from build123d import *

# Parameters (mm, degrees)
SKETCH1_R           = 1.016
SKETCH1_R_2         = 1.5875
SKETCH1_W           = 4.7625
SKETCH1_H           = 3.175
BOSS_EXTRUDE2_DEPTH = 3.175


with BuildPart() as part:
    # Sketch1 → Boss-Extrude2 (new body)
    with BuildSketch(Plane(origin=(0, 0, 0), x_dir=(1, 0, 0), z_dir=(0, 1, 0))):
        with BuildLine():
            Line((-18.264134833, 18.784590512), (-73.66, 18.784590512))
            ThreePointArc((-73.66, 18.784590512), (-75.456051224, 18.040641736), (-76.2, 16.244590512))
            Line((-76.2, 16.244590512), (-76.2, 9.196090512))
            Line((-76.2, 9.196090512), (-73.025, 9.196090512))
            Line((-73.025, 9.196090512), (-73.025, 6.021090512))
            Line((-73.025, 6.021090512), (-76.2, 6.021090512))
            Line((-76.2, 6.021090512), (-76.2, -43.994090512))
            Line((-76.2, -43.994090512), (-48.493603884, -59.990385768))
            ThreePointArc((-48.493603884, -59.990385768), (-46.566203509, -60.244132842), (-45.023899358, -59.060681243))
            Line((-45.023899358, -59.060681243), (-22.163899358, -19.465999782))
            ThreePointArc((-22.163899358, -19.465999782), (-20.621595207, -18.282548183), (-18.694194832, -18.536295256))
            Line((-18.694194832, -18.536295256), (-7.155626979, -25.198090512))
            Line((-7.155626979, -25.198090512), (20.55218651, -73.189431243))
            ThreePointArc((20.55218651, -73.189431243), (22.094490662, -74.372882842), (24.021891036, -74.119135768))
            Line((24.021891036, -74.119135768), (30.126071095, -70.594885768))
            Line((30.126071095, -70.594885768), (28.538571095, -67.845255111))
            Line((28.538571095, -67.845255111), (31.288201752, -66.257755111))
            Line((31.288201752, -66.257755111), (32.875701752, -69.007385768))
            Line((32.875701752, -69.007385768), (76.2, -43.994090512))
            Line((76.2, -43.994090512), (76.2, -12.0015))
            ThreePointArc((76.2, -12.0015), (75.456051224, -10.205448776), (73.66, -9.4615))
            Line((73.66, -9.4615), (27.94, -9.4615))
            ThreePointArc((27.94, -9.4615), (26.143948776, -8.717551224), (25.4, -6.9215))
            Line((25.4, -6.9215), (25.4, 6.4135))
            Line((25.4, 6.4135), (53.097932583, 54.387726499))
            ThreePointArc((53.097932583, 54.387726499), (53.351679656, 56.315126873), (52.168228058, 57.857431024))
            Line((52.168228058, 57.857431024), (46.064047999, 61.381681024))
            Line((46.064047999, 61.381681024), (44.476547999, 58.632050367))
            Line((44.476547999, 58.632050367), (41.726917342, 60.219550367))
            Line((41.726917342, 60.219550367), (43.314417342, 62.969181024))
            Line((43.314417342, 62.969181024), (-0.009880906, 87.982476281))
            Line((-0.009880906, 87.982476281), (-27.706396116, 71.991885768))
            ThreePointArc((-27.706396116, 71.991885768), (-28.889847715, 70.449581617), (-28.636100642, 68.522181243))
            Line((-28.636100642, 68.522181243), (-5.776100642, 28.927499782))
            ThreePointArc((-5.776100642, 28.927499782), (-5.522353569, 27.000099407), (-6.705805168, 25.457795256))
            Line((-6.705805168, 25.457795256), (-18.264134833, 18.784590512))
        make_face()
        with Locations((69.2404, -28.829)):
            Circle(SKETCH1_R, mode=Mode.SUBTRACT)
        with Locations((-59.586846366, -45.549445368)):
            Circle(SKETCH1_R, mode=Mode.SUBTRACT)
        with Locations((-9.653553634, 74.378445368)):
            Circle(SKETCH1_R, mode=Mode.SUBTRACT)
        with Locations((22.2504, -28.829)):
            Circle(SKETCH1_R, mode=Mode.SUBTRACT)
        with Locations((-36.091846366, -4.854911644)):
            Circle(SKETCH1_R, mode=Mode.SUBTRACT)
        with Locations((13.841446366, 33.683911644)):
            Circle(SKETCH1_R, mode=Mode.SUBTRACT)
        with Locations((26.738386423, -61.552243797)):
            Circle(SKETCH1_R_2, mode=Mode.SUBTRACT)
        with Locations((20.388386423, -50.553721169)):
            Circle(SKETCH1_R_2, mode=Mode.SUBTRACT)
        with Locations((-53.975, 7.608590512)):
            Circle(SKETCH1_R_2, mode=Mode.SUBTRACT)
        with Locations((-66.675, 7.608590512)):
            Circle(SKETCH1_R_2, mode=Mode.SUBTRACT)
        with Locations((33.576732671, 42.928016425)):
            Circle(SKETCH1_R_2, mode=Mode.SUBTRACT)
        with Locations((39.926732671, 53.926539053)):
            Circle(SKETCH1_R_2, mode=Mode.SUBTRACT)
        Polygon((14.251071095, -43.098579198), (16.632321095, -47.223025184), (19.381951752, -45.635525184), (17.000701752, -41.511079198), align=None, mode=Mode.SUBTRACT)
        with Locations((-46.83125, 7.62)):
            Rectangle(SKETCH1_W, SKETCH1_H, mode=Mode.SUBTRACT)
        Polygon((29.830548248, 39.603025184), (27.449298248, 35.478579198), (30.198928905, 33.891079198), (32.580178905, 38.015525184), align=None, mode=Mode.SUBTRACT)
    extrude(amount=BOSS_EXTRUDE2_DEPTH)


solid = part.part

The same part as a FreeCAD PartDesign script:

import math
import FreeCAD as App
import Part
import Sketcher
from FreeCAD import Vector
Q = App.Units.Quantity


def add_polygon(sketch, points):
    """Adds a closed chain of lines whose ends are joined by coincident constraints."""
    first, n = sketch.GeometryCount, len(points)
    for a, b in zip(points, points[1:] + points[:1]):
        sketch.addGeometry(Part.LineSegment(App.Vector(*a, 0), App.Vector(*b, 0)), False)
    for i in range(n):
        sketch.addConstraint(Sketcher.Constraint("Coincident", first + i, 2, first + (i + 1) % n, 1))

doc = App.newDocument("Part")
params = doc.addObject("Spreadsheet::Sheet", "Params")
for row, (alias, value) in enumerate([
    ("sketch1_radius", "0.1 in"),
    ("sketch1_diameter", "0.08 in"),
    ("sketch1_diameter2", "0.125 in"),
    ("sketch1_width", "1.8 in"),
    ("sketch1_length", "1.8 in"),
    ("pad1_length", "0.125 in"),
], start=1):
    params.set(f"A{row}", alias)
    params.set(f"B{row}", "=" + value)
    params.setAlias(f"B{row}", alias)

body = doc.addObject("PartDesign::Body", "Body")

# Sketch on XZ plane
sketch1 = body.newObject("Sketcher::SketchObject", "Sketch")
sketch1.AttachmentSupport = (doc.getObject("XZ_Plane"), [""])
sketch1.MapMode = "FlatFace"
sketch1.addGeometry(Part.LineSegment(Vector(-18.3, -18.8, 0), Vector(-73.7, -18.8, 0)), False)  # 0
sketch1.addGeometry(Part.ArcOfCircle(Part.Circle(Vector(-73.7, -16.2, 0), Vector(0, 0, 1), 2.5), math.radians(-180), math.radians(-90)), False)  # 1
sketch1.addGeometry(Part.LineSegment(Vector(-76.2, -16.2, 0), Vector(-76.2, -9.2, 0)), False)  # 2
sketch1.addGeometry(Part.LineSegment(Vector(-76.2, -9.2, 0), Vector(-73, -9.2, 0)), False)  # 3
sketch1.addGeometry(Part.LineSegment(Vector(-73, -9.2, 0), Vector(-73, -6, 0)), False)  # 4
sketch1.addGeometry(Part.LineSegment(Vector(-73, -6, 0), Vector(-76.2, -6, 0)), False)  # 5
sketch1.addGeometry(Part.LineSegment(Vector(-76.2, -6, 0), Vector(-76.2, 44, 0)), False)  # 6
sketch1.addGeometry(Part.LineSegment(Vector(-76.2, 44, 0), Vector(-48.5, 60, 0)), False)  # 7
sketch1.addGeometry(Part.ArcOfCircle(Part.Circle(Vector(-47.2, 57.8, 0), Vector(0, 0, 1), 2.5), math.radians(30), math.radians(120)), False)  # 8
sketch1.addGeometry(Part.LineSegment(Vector(-45, 59.1, 0), Vector(-22.2, 19.5, 0)), False)  # 9
sketch1.addGeometry(Part.ArcOfCircle(Part.Circle(Vector(-20, 20.7, 0), Vector(0, 0, 1), 2.5), math.radians(-150), math.radians(-60)), False)  # 10
sketch1.addGeometry(Part.LineSegment(Vector(-18.7, 18.5, 0), Vector(-7.2, 25.2, 0)), False)  # 11
sketch1.addGeometry(Part.LineSegment(Vector(-7.2, 25.2, 0), Vector(20.6, 73.2, 0)), False)  # 12
sketch1.addGeometry(Part.ArcOfCircle(Part.Circle(Vector(22.8, 71.9, 0), Vector(0, 0, 1), 2.5), math.radians(60), math.radians(150)), False)  # 13
sketch1.addGeometry(Part.LineSegment(Vector(24, 74.1, 0), Vector(30.1, 70.6, 0)), False)  # 14
sketch1.addGeometry(Part.LineSegment(Vector(30.1, 70.6, 0), Vector(28.5, 67.8, 0)), False)  # 15
sketch1.addGeometry(Part.LineSegment(Vector(28.5, 67.8, 0), Vector(31.3, 66.3, 0)), False)  # 16
sketch1.addGeometry(Part.LineSegment(Vector(31.3, 66.3, 0), Vector(32.9, 69, 0)), False)  # 17
sketch1.addGeometry(Part.LineSegment(Vector(32.9, 69, 0), Vector(76.2, 44, 0)), False)  # 18
sketch1.addGeometry(Part.LineSegment(Vector(76.2, 44, 0), Vector(76.2, 12, 0)), False)  # 19
sketch1.addGeometry(Part.ArcOfCircle(Part.Circle(Vector(73.7, 12, 0), Vector(0, 0, 1), 2.5), math.radians(-90), math.radians(0)), False)  # 20
sketch1.addGeometry(Part.LineSegment(Vector(73.7, 9.5, 0), Vector(27.9, 9.5, 0)), False)  # 21
sketch1.addGeometry(Part.ArcOfCircle(Part.Circle(Vector(27.9, 6.9, 0), Vector(0, 0, 1), 2.5), math.radians(90), math.radians(180)), False)  # 22
sketch1.addGeometry(Part.LineSegment(Vector(25.4, 6.9, 0), Vector(25.4, -6.4, 0)), False)  # 23
sketch1.addGeometry(Part.LineSegment(Vector(25.4, -6.4, 0), Vector(53.1, -54.4, 0)), False)  # 24
sketch1.addGeometry(Part.ArcOfCircle(Part.Circle(Vector(50.9, -55.7, 0), Vector(0, 0, 1), 2.5), math.radians(-60), math.radians(30)), False)  # 25
sketch1.addGeometry(Part.LineSegment(Vector(52.2, -57.9, 0), Vector(46.1, -61.4, 0)), False)  # 26
sketch1.addGeometry(Part.LineSegment(Vector(46.1, -61.4, 0), Vector(44.5, -58.6, 0)), False)  # 27
sketch1.addGeometry(Part.LineSegment(Vector(44.5, -58.6, 0), Vector(41.7, -60.2, 0)), False)  # 28
sketch1.addGeometry(Part.LineSegment(Vector(41.7, -60.2, 0), Vector(43.3, -63, 0)), False)  # 29
sketch1.addGeometry(Part.LineSegment(Vector(43.3, -63, 0), Vector(0, -88, 0)), False)  # 30
sketch1.addGeometry(Part.LineSegment(Vector(0, -88, 0), Vector(-27.7, -72, 0)), False)  # 31
sketch1.addGeometry(Part.ArcOfCircle(Part.Circle(Vector(-26.4, -69.8, 0), Vector(0, 0, 1), 2.5), math.radians(150), math.radians(240)), False)  # 32
sketch1.addGeometry(Part.LineSegment(Vector(-28.6, -68.5, 0), Vector(-5.8, -28.9, 0)), False)  # 33
sketch1.addGeometry(Part.ArcOfCircle(Part.Circle(Vector(-8, -27.7, 0), Vector(0, 0, 1), 2.5), math.radians(-30), math.radians(60)), False)  # 34
sketch1.addGeometry(Part.LineSegment(Vector(-6.7, -25.5, 0), Vector(-18.3, -18.8, 0)), False)  # 35
sketch1.addGeometry(Part.Circle(Vector(-59.6, 45.5, 0), Vector(0, 0, 1), 1), False)  # 36
sketch1.addGeometry(Part.Circle(Vector(-36.1, 4.9, 0), Vector(0, 0, 1), 1), False)  # 37
sketch1.addGeometry(Part.Circle(Vector(26.7, 61.6, 0), Vector(0, 0, 1), 1.6), False)  # 38
sketch1.addGeometry(Part.Circle(Vector(20.4, 50.6, 0), Vector(0, 0, 1), 1.6), False)  # 39
add_polygon(sketch1, [(16.6, 47.2), (14.3, 43.1), (17, 41.5), (19.4, 45.6)])  # lines 40-43
sketch1.addGeometry(Part.Circle(Vector(22.3, 28.8, 0), Vector(0, 0, 1), 1), False)  # 44
sketch1.addGeometry(Part.Circle(Vector(69.2, 28.8, 0), Vector(0, 0, 1), 1), False)  # 45
sketch1.addGeometry(Part.Circle(Vector(-66.7, -7.6, 0), Vector(0, 0, 1), 1.6), False)  # 46
sketch1.addGeometry(Part.Circle(Vector(-54, -7.6, 0), Vector(0, 0, 1), 1.6), False)  # 47
add_polygon(sketch1, [(-44.5, -6), (-49.2, -6), (-49.2, -9.2), (-44.5, -9.2)])  # lines 48-51
sketch1.addGeometry(Part.Circle(Vector(-9.7, -74.4, 0), Vector(0, 0, 1), 1), False)  # 52
sketch1.addGeometry(Part.Circle(Vector(13.8, -33.7, 0), Vector(0, 0, 1), 1), False)  # 53
add_polygon(sketch1, [(27.4, -35.5), (29.8, -39.6), (32.6, -38), (30.2, -33.9)])  # lines 54-57
sketch1.addGeometry(Part.Circle(Vector(33.6, -42.9, 0), Vector(0, 0, 1), 1.6), False)  # 58
sketch1.addGeometry(Part.Circle(Vector(39.9, -53.9, 0), Vector(0, 0, 1), 1.6), False)  # 59
sketch1.addConstraint(Sketcher.Constraint("Tangent", 0, 2, 1, 2))
sketch1.addConstraint(Sketcher.Constraint("Tangent", 1, 1, 2, 1))
sketch1.addConstraint(Sketcher.Constraint("Coincident", 2, 2, 3, 1))
sketch1.addConstraint(Sketcher.Constraint("Coincident", 3, 2, 4, 1))
sketch1.addConstraint(Sketcher.Constraint("Coincident", 4, 2, 5, 1))
sketch1.addConstraint(Sketcher.Constraint("Coincident", 5, 2, 6, 1))
sketch1.addConstraint(Sketcher.Constraint("Coincident", 6, 2, 7, 1))
sketch1.addConstraint(Sketcher.Constraint("Tangent", 7, 2, 8, 2))
sketch1.addConstraint(Sketcher.Constraint("Tangent", 8, 1, 9, 1))
sketch1.addConstraint(Sketcher.Constraint("Tangent", 9, 2, 10, 1))
sketch1.addConstraint(Sketcher.Constraint("Tangent", 10, 2, 11, 1))
sketch1.addConstraint(Sketcher.Constraint("Coincident", 11, 2, 12, 1))
sketch1.addConstraint(Sketcher.Constraint("Tangent", 12, 2, 13, 2))
sketch1.addConstraint(Sketcher.Constraint("Tangent", 13, 1, 14, 1))
sketch1.addConstraint(Sketcher.Constraint("Coincident", 14, 2, 15, 1))
sketch1.addConstraint(Sketcher.Constraint("Coincident", 15, 2, 16, 1))
sketch1.addConstraint(Sketcher.Constraint("Coincident", 16, 2, 17, 1))
sketch1.addConstraint(Sketcher.Constraint("Coincident", 17, 2, 18, 1))
sketch1.addConstraint(Sketcher.Constraint("Coincident", 18, 2, 19, 1))
sketch1.addConstraint(Sketcher.Constraint("Tangent", 19, 2, 20, 2))
sketch1.addConstraint(Sketcher.Constraint("Tangent", 20, 1, 21, 1))
sketch1.addConstraint(Sketcher.Constraint("Tangent", 21, 2, 22, 1))
sketch1.addConstraint(Sketcher.Constraint("Tangent", 22, 2, 23, 1))
sketch1.addConstraint(Sketcher.Constraint("Coincident", 23, 2, 24, 1))
sketch1.addConstraint(Sketcher.Constraint("Tangent", 24, 2, 25, 2))
sketch1.addConstraint(Sketcher.Constraint("Tangent", 25, 1, 26, 1))
sketch1.addConstraint(Sketcher.Constraint("Coincident", 26, 2, 27, 1))
sketch1.addConstraint(Sketcher.Constraint("Coincident", 27, 2, 28, 1))
sketch1.addConstraint(Sketcher.Constraint("Coincident", 28, 2, 29, 1))
sketch1.addConstraint(Sketcher.Constraint("Coincident", 29, 2, 30, 1))
sketch1.addConstraint(Sketcher.Constraint("Coincident", 30, 2, 31, 1))
sketch1.addConstraint(Sketcher.Constraint("Tangent", 31, 2, 32, 2))
sketch1.addConstraint(Sketcher.Constraint("Tangent", 32, 1, 33, 1))
sketch1.addConstraint(Sketcher.Constraint("Tangent", 33, 2, 34, 1))
sketch1.addConstraint(Sketcher.Constraint("Tangent", 34, 2, 35, 1))
sketch1.addConstraint(Sketcher.Constraint("Coincident", 35, 2, 0, 1))
sketch1.addConstraint(Sketcher.Constraint("Horizontal", 0))
sketch1.addConstraint(Sketcher.Constraint("Vertical", 2))
sketch1.addConstraint(Sketcher.Constraint("Horizontal", 3))
sketch1.addConstraint(Sketcher.Constraint("Vertical", 4))
sketch1.addConstraint(Sketcher.Constraint("Horizontal", 5))
sketch1.addConstraint(Sketcher.Constraint("Vertical", 6))
sketch1.addConstraint(Sketcher.Constraint("Vertical", 19))
sketch1.addConstraint(Sketcher.Constraint("Horizontal", 21))
sketch1.addConstraint(Sketcher.Constraint("Vertical", 23))
sketch1.addConstraint(Sketcher.Constraint("Horizontal", 48))
sketch1.addConstraint(Sketcher.Constraint("Vertical", 49))
sketch1.addConstraint(Sketcher.Constraint("Horizontal", 50))
sketch1.addConstraint(Sketcher.Constraint("Vertical", 51))
sketch1.addConstraint(Sketcher.Constraint("Equal", 1, 8))
sketch1.addConstraint(Sketcher.Constraint("Equal", 8, 10))
sketch1.addConstraint(Sketcher.Constraint("Equal", 10, 13))
sketch1.addConstraint(Sketcher.Constraint("Equal", 13, 20))
sketch1.addConstraint(Sketcher.Constraint("Equal", 20, 22))
sketch1.addConstraint(Sketcher.Constraint("Equal", 22, 25))
sketch1.addConstraint(Sketcher.Constraint("Equal", 25, 32))
sketch1.addConstraint(Sketcher.Constraint("Equal", 32, 34))
sketch1.addConstraint(Sketcher.Constraint("Equal", 36, 37))
sketch1.addConstraint(Sketcher.Constraint("Equal", 38, 39))
sketch1.addConstraint(Sketcher.Constraint("Equal", 37, 44))
sketch1.addConstraint(Sketcher.Constraint("Equal", 44, 45))
sketch1.addConstraint(Sketcher.Constraint("Equal", 39, 46))
sketch1.addConstraint(Sketcher.Constraint("Equal", 46, 47))
sketch1.addConstraint(Sketcher.Constraint("Equal", 45, 52))
sketch1.addConstraint(Sketcher.Constraint("Equal", 52, 53))
sketch1.addConstraint(Sketcher.Constraint("Equal", 47, 58))
sketch1.addConstraint(Sketcher.Constraint("Equal", 58, 59))
sketch1.addConstraint(Sketcher.Constraint("Symmetric", 6, 2, 18, 2, -2))
sketch1.addConstraint(Sketcher.Constraint("Perpendicular", 7, 9))
sketch1.addConstraint(Sketcher.Constraint("Perpendicular", 9, 11))
sketch1.addConstraint(Sketcher.Constraint("Perpendicular", 12, 14))
sketch1.addConstraint(Sketcher.Constraint("Perpendicular", 14, 15))
sketch1.addConstraint(Sketcher.Constraint("Perpendicular", 15, 16))
sketch1.addConstraint(Sketcher.Constraint("Perpendicular", 16, 17))
sketch1.addConstraint(Sketcher.Constraint("Perpendicular", 17, 18))
sketch1.addConstraint(Sketcher.Constraint("Perpendicular", 11, 24))
sketch1.addConstraint(Sketcher.Constraint("Perpendicular", 24, 26))
sketch1.addConstraint(Sketcher.Constraint("Perpendicular", 26, 27))
sketch1.addConstraint(Sketcher.Constraint("Perpendicular", 27, 28))
sketch1.addConstraint(Sketcher.Constraint("Perpendicular", 28, 29))
sketch1.addConstraint(Sketcher.Constraint("Perpendicular", 29, 30))
sketch1.addConstraint(Sketcher.Constraint("Parallel", 18, 31))
sketch1.addConstraint(Sketcher.Constraint("Perpendicular", 31, 33))
sketch1.addConstraint(Sketcher.Constraint("Perpendicular", 33, 35))
sketch1.addConstraint(Sketcher.Constraint("Perpendicular", 35, 40))
sketch1.addConstraint(Sketcher.Constraint("Perpendicular", 40, 41))
sketch1.addConstraint(Sketcher.Constraint("Perpendicular", 41, 42))
sketch1.addConstraint(Sketcher.Constraint("Perpendicular", 42, 43))
sketch1.addConstraint(Sketcher.Constraint("Perpendicular", 30, 54))
sketch1.addConstraint(Sketcher.Constraint("Perpendicular", 54, 55))
sketch1.addConstraint(Sketcher.Constraint("Perpendicular", 55, 56))
sketch1.addConstraint(Sketcher.Constraint("Perpendicular", 56, 57))
sketch1.addConstraint(Sketcher.Constraint("Horizontal", 44, 3, 45, 3))
sketch1.addConstraint(Sketcher.Constraint("Horizontal", 46, 3, 47, 3))
sketch1.addConstraint(Sketcher.Constraint("Vertical", 2, 2, 5, 2))
sketch1.addConstraint(Sketcher.Constraint("Equal", 5, 4))
sketch1.addConstraint(Sketcher.Constraint("Equal", 4, 49))
sketch1.addConstraint(Sketcher.Constraint("Equal", 15, 16))
sketch1.addConstraint(Sketcher.Constraint("Equal", 16, 17))
sketch1.addConstraint(Sketcher.Constraint("Equal", 14, 26))
sketch1.addConstraint(Sketcher.Constraint("Equal", 17, 27))
sketch1.addConstraint(Sketcher.Constraint("Equal", 27, 28))
sketch1.addConstraint(Sketcher.Constraint("Equal", 28, 29))
sketch1.addConstraint(Sketcher.Constraint("Equal", 18, 30))
sketch1.addConstraint(Sketcher.Constraint("Equal", 9, 33))
sketch1.addConstraint(Sketcher.Constraint("Equal", 29, 41))
sketch1.addConstraint(Sketcher.Constraint("Equal", 42, 54))
sketch1.addConstraint(Sketcher.Constraint("Equal", 43, 55))
sketch1.addConstraint(Sketcher.Constraint("Radius", 1, Q("0.1 in")))
sketch1.addConstraint(Sketcher.Constraint("Diameter", 36, Q("0.08 in")))
sketch1.addConstraint(Sketcher.Constraint("Diameter", 38, Q("0.125 in")))
sketch1.addConstraint(Sketcher.Constraint("DistanceX", 21, 2, 21, 1, Q("1.8 in")))
sketch1.addConstraint(Sketcher.Constraint("DistanceX", 1, 1, -1, 1, Q("3 in")))
sketch1.addConstraint(Sketcher.Constraint("Angle", 7, Q("30 deg")))
sketch1.addConstraint(Sketcher.Constraint("Angle", 12, Q("60 deg")))
sketch1.addConstraint(Sketcher.Constraint("Distance", 9, Q("1.8 in")))
sketch1.addConstraint(Sketcher.Constraint("DistanceX", 3, 1, 3, 2, Q("0.125 in")))
sketch1.addConstraint(Sketcher.Constraint("DistanceX", 48, 2, 48, 1, Q("0.1875 in")))
sketch1.addConstraint(Sketcher.Constraint("DistanceY", 23, 2, 23, 1, Q("0.525 in")))
sketch1.addConstraint(Sketcher.Constraint("DistanceX", 50, 2, -1, 1, Q("1.75 in")))
sketch1.addConstraint(Sketcher.Constraint("Distance", 15, Q("0.125 in")))
sketch1.addConstraint(Sketcher.Constraint("Distance", 40, Q("0.1875 in")))
sketch1.addConstraint(Sketcher.Constraint("DistanceY", 2, 1, 2, 2, Q("0.2775 in")))
sketch1.addConstraint(Sketcher.Constraint("DistanceX", -1, 1, 44, 3, Q("0.876 in")))
sketch1.addConstraint(Sketcher.Constraint("DistanceY", -1, 1, 44, 3, Q("1.135 in")))
sketch1.addConstraint(Sketcher.Constraint("DistanceX", -1, 1, 45, 3, Q("2.726 in")))
sketch1.addConstraint(Sketcher.Constraint("DistanceX", 46, 3, -1, 1, Q("2.625 in")))
sketch1.addConstraint(Sketcher.Constraint("DistanceX", 47, 3, -1, 1, Q("2.125 in")))
sketch1.addConstraint(Sketcher.Constraint("Distance", 14, Q("0.2775 in")))
sketch1.addConstraint(Sketcher.Constraint("DistanceY", -1, 1, 20, 3, Q("0.4725 in")))
sketch1.addConstraint(Sketcher.Constraint("DistanceY", 48, 2, -1, 1, Q("0.2375 in")))
sketch1.addConstraint(Sketcher.Constraint("DistanceY", 6, 1, 6, 2, 50.015181))
sketch1.addConstraint(Sketcher.Constraint("DistanceY", 19, 2, 19, 1, 31.992591))
sketch1.addConstraint(Sketcher.Constraint("DistanceY", -1, 1, 10, 3, 20.736))
sketch1.addConstraint(Sketcher.Constraint("DistanceY", 34, 3, -1, 1, 27.6575))
sketch1.addConstraint(Sketcher.Constraint("DistanceX", -1, 1, 16, 2, 31.288202))
sketch1.addConstraint(Sketcher.Constraint("DistanceX", 32, 1, -1, 1, 28.636101))
sketch1.addConstraint(Sketcher.Constraint("DistanceX", -1, 1, 41, 2, 17.000702))
sketch1.addConstraint(Sketcher.Constraint("DistanceX", -1, 1, 57, 2, 27.449298))
sketch1.addConstraint(Sketcher.Constraint("DistanceY", -1, 1, 37, 3, 4.854912))
sketch1.addConstraint(Sketcher.Constraint("DistanceY", -1, 1, 39, 3, 50.553721))
sketch1.addConstraint(Sketcher.Constraint("DistanceY", 46, 3, -1, 1, 7.608591))
sketch1.addConstraint(Sketcher.Constraint("DistanceY", 53, 3, -1, 1, 33.683912))
sketch1.addConstraint(Sketcher.Constraint("DistanceY", 59, 3, -1, 1, 53.926539))
sketch1.addConstraint(Sketcher.Constraint("DistanceY", -1, 1, 40, 2, 43.098579))
sketch1.addConstraint(Sketcher.Constraint("DistanceY", 56, 2, -1, 1, 33.891079))
sketch1.addConstraint(Sketcher.Constraint("DistanceX", 36, 3, -1, 1, 59.586846))
sketch1.addConstraint(Sketcher.Constraint("DistanceY", -1, 1, 36, 3, 45.549445))
sketch1.addConstraint(Sketcher.Constraint("DistanceX", 37, 3, -1, 1, 36.091846))
sketch1.addConstraint(Sketcher.Constraint("DistanceX", -1, 1, 38, 3, 26.738386))
sketch1.addConstraint(Sketcher.Constraint("DistanceY", -1, 1, 38, 3, 61.552244))
sketch1.addConstraint(Sketcher.Constraint("DistanceX", -1, 1, 39, 3, 20.388386))
sketch1.addConstraint(Sketcher.Constraint("DistanceX", 52, 3, -1, 1, 9.653554))
sketch1.addConstraint(Sketcher.Constraint("DistanceY", 52, 3, -1, 1, 74.378445))
sketch1.addConstraint(Sketcher.Constraint("DistanceX", -1, 1, 53, 3, 13.841446))
sketch1.addConstraint(Sketcher.Constraint("DistanceX", -1, 1, 58, 3, 33.576733))
sketch1.addConstraint(Sketcher.Constraint("DistanceY", 58, 3, -1, 1, 42.928016))
sketch1.addConstraint(Sketcher.Constraint("DistanceX", -1, 1, 59, 3, 39.926733))
sketch1.setExpression("Constraints[120]", "Params.sketch1_radius")
sketch1.setExpression("Constraints[121]", "Params.sketch1_diameter")
sketch1.setExpression("Constraints[122]", "Params.sketch1_diameter2")
sketch1.setExpression("Constraints[123]", "Params.sketch1_width")
sketch1.setExpression("Constraints[127]", "Params.sketch1_length")
pad1 = body.newObject("PartDesign::Pad", "Pad")
pad1.Profile = sketch1
pad1.setExpression("Length", "Params.pad1_length")
pad1.Reversed = True

doc.recompute()
